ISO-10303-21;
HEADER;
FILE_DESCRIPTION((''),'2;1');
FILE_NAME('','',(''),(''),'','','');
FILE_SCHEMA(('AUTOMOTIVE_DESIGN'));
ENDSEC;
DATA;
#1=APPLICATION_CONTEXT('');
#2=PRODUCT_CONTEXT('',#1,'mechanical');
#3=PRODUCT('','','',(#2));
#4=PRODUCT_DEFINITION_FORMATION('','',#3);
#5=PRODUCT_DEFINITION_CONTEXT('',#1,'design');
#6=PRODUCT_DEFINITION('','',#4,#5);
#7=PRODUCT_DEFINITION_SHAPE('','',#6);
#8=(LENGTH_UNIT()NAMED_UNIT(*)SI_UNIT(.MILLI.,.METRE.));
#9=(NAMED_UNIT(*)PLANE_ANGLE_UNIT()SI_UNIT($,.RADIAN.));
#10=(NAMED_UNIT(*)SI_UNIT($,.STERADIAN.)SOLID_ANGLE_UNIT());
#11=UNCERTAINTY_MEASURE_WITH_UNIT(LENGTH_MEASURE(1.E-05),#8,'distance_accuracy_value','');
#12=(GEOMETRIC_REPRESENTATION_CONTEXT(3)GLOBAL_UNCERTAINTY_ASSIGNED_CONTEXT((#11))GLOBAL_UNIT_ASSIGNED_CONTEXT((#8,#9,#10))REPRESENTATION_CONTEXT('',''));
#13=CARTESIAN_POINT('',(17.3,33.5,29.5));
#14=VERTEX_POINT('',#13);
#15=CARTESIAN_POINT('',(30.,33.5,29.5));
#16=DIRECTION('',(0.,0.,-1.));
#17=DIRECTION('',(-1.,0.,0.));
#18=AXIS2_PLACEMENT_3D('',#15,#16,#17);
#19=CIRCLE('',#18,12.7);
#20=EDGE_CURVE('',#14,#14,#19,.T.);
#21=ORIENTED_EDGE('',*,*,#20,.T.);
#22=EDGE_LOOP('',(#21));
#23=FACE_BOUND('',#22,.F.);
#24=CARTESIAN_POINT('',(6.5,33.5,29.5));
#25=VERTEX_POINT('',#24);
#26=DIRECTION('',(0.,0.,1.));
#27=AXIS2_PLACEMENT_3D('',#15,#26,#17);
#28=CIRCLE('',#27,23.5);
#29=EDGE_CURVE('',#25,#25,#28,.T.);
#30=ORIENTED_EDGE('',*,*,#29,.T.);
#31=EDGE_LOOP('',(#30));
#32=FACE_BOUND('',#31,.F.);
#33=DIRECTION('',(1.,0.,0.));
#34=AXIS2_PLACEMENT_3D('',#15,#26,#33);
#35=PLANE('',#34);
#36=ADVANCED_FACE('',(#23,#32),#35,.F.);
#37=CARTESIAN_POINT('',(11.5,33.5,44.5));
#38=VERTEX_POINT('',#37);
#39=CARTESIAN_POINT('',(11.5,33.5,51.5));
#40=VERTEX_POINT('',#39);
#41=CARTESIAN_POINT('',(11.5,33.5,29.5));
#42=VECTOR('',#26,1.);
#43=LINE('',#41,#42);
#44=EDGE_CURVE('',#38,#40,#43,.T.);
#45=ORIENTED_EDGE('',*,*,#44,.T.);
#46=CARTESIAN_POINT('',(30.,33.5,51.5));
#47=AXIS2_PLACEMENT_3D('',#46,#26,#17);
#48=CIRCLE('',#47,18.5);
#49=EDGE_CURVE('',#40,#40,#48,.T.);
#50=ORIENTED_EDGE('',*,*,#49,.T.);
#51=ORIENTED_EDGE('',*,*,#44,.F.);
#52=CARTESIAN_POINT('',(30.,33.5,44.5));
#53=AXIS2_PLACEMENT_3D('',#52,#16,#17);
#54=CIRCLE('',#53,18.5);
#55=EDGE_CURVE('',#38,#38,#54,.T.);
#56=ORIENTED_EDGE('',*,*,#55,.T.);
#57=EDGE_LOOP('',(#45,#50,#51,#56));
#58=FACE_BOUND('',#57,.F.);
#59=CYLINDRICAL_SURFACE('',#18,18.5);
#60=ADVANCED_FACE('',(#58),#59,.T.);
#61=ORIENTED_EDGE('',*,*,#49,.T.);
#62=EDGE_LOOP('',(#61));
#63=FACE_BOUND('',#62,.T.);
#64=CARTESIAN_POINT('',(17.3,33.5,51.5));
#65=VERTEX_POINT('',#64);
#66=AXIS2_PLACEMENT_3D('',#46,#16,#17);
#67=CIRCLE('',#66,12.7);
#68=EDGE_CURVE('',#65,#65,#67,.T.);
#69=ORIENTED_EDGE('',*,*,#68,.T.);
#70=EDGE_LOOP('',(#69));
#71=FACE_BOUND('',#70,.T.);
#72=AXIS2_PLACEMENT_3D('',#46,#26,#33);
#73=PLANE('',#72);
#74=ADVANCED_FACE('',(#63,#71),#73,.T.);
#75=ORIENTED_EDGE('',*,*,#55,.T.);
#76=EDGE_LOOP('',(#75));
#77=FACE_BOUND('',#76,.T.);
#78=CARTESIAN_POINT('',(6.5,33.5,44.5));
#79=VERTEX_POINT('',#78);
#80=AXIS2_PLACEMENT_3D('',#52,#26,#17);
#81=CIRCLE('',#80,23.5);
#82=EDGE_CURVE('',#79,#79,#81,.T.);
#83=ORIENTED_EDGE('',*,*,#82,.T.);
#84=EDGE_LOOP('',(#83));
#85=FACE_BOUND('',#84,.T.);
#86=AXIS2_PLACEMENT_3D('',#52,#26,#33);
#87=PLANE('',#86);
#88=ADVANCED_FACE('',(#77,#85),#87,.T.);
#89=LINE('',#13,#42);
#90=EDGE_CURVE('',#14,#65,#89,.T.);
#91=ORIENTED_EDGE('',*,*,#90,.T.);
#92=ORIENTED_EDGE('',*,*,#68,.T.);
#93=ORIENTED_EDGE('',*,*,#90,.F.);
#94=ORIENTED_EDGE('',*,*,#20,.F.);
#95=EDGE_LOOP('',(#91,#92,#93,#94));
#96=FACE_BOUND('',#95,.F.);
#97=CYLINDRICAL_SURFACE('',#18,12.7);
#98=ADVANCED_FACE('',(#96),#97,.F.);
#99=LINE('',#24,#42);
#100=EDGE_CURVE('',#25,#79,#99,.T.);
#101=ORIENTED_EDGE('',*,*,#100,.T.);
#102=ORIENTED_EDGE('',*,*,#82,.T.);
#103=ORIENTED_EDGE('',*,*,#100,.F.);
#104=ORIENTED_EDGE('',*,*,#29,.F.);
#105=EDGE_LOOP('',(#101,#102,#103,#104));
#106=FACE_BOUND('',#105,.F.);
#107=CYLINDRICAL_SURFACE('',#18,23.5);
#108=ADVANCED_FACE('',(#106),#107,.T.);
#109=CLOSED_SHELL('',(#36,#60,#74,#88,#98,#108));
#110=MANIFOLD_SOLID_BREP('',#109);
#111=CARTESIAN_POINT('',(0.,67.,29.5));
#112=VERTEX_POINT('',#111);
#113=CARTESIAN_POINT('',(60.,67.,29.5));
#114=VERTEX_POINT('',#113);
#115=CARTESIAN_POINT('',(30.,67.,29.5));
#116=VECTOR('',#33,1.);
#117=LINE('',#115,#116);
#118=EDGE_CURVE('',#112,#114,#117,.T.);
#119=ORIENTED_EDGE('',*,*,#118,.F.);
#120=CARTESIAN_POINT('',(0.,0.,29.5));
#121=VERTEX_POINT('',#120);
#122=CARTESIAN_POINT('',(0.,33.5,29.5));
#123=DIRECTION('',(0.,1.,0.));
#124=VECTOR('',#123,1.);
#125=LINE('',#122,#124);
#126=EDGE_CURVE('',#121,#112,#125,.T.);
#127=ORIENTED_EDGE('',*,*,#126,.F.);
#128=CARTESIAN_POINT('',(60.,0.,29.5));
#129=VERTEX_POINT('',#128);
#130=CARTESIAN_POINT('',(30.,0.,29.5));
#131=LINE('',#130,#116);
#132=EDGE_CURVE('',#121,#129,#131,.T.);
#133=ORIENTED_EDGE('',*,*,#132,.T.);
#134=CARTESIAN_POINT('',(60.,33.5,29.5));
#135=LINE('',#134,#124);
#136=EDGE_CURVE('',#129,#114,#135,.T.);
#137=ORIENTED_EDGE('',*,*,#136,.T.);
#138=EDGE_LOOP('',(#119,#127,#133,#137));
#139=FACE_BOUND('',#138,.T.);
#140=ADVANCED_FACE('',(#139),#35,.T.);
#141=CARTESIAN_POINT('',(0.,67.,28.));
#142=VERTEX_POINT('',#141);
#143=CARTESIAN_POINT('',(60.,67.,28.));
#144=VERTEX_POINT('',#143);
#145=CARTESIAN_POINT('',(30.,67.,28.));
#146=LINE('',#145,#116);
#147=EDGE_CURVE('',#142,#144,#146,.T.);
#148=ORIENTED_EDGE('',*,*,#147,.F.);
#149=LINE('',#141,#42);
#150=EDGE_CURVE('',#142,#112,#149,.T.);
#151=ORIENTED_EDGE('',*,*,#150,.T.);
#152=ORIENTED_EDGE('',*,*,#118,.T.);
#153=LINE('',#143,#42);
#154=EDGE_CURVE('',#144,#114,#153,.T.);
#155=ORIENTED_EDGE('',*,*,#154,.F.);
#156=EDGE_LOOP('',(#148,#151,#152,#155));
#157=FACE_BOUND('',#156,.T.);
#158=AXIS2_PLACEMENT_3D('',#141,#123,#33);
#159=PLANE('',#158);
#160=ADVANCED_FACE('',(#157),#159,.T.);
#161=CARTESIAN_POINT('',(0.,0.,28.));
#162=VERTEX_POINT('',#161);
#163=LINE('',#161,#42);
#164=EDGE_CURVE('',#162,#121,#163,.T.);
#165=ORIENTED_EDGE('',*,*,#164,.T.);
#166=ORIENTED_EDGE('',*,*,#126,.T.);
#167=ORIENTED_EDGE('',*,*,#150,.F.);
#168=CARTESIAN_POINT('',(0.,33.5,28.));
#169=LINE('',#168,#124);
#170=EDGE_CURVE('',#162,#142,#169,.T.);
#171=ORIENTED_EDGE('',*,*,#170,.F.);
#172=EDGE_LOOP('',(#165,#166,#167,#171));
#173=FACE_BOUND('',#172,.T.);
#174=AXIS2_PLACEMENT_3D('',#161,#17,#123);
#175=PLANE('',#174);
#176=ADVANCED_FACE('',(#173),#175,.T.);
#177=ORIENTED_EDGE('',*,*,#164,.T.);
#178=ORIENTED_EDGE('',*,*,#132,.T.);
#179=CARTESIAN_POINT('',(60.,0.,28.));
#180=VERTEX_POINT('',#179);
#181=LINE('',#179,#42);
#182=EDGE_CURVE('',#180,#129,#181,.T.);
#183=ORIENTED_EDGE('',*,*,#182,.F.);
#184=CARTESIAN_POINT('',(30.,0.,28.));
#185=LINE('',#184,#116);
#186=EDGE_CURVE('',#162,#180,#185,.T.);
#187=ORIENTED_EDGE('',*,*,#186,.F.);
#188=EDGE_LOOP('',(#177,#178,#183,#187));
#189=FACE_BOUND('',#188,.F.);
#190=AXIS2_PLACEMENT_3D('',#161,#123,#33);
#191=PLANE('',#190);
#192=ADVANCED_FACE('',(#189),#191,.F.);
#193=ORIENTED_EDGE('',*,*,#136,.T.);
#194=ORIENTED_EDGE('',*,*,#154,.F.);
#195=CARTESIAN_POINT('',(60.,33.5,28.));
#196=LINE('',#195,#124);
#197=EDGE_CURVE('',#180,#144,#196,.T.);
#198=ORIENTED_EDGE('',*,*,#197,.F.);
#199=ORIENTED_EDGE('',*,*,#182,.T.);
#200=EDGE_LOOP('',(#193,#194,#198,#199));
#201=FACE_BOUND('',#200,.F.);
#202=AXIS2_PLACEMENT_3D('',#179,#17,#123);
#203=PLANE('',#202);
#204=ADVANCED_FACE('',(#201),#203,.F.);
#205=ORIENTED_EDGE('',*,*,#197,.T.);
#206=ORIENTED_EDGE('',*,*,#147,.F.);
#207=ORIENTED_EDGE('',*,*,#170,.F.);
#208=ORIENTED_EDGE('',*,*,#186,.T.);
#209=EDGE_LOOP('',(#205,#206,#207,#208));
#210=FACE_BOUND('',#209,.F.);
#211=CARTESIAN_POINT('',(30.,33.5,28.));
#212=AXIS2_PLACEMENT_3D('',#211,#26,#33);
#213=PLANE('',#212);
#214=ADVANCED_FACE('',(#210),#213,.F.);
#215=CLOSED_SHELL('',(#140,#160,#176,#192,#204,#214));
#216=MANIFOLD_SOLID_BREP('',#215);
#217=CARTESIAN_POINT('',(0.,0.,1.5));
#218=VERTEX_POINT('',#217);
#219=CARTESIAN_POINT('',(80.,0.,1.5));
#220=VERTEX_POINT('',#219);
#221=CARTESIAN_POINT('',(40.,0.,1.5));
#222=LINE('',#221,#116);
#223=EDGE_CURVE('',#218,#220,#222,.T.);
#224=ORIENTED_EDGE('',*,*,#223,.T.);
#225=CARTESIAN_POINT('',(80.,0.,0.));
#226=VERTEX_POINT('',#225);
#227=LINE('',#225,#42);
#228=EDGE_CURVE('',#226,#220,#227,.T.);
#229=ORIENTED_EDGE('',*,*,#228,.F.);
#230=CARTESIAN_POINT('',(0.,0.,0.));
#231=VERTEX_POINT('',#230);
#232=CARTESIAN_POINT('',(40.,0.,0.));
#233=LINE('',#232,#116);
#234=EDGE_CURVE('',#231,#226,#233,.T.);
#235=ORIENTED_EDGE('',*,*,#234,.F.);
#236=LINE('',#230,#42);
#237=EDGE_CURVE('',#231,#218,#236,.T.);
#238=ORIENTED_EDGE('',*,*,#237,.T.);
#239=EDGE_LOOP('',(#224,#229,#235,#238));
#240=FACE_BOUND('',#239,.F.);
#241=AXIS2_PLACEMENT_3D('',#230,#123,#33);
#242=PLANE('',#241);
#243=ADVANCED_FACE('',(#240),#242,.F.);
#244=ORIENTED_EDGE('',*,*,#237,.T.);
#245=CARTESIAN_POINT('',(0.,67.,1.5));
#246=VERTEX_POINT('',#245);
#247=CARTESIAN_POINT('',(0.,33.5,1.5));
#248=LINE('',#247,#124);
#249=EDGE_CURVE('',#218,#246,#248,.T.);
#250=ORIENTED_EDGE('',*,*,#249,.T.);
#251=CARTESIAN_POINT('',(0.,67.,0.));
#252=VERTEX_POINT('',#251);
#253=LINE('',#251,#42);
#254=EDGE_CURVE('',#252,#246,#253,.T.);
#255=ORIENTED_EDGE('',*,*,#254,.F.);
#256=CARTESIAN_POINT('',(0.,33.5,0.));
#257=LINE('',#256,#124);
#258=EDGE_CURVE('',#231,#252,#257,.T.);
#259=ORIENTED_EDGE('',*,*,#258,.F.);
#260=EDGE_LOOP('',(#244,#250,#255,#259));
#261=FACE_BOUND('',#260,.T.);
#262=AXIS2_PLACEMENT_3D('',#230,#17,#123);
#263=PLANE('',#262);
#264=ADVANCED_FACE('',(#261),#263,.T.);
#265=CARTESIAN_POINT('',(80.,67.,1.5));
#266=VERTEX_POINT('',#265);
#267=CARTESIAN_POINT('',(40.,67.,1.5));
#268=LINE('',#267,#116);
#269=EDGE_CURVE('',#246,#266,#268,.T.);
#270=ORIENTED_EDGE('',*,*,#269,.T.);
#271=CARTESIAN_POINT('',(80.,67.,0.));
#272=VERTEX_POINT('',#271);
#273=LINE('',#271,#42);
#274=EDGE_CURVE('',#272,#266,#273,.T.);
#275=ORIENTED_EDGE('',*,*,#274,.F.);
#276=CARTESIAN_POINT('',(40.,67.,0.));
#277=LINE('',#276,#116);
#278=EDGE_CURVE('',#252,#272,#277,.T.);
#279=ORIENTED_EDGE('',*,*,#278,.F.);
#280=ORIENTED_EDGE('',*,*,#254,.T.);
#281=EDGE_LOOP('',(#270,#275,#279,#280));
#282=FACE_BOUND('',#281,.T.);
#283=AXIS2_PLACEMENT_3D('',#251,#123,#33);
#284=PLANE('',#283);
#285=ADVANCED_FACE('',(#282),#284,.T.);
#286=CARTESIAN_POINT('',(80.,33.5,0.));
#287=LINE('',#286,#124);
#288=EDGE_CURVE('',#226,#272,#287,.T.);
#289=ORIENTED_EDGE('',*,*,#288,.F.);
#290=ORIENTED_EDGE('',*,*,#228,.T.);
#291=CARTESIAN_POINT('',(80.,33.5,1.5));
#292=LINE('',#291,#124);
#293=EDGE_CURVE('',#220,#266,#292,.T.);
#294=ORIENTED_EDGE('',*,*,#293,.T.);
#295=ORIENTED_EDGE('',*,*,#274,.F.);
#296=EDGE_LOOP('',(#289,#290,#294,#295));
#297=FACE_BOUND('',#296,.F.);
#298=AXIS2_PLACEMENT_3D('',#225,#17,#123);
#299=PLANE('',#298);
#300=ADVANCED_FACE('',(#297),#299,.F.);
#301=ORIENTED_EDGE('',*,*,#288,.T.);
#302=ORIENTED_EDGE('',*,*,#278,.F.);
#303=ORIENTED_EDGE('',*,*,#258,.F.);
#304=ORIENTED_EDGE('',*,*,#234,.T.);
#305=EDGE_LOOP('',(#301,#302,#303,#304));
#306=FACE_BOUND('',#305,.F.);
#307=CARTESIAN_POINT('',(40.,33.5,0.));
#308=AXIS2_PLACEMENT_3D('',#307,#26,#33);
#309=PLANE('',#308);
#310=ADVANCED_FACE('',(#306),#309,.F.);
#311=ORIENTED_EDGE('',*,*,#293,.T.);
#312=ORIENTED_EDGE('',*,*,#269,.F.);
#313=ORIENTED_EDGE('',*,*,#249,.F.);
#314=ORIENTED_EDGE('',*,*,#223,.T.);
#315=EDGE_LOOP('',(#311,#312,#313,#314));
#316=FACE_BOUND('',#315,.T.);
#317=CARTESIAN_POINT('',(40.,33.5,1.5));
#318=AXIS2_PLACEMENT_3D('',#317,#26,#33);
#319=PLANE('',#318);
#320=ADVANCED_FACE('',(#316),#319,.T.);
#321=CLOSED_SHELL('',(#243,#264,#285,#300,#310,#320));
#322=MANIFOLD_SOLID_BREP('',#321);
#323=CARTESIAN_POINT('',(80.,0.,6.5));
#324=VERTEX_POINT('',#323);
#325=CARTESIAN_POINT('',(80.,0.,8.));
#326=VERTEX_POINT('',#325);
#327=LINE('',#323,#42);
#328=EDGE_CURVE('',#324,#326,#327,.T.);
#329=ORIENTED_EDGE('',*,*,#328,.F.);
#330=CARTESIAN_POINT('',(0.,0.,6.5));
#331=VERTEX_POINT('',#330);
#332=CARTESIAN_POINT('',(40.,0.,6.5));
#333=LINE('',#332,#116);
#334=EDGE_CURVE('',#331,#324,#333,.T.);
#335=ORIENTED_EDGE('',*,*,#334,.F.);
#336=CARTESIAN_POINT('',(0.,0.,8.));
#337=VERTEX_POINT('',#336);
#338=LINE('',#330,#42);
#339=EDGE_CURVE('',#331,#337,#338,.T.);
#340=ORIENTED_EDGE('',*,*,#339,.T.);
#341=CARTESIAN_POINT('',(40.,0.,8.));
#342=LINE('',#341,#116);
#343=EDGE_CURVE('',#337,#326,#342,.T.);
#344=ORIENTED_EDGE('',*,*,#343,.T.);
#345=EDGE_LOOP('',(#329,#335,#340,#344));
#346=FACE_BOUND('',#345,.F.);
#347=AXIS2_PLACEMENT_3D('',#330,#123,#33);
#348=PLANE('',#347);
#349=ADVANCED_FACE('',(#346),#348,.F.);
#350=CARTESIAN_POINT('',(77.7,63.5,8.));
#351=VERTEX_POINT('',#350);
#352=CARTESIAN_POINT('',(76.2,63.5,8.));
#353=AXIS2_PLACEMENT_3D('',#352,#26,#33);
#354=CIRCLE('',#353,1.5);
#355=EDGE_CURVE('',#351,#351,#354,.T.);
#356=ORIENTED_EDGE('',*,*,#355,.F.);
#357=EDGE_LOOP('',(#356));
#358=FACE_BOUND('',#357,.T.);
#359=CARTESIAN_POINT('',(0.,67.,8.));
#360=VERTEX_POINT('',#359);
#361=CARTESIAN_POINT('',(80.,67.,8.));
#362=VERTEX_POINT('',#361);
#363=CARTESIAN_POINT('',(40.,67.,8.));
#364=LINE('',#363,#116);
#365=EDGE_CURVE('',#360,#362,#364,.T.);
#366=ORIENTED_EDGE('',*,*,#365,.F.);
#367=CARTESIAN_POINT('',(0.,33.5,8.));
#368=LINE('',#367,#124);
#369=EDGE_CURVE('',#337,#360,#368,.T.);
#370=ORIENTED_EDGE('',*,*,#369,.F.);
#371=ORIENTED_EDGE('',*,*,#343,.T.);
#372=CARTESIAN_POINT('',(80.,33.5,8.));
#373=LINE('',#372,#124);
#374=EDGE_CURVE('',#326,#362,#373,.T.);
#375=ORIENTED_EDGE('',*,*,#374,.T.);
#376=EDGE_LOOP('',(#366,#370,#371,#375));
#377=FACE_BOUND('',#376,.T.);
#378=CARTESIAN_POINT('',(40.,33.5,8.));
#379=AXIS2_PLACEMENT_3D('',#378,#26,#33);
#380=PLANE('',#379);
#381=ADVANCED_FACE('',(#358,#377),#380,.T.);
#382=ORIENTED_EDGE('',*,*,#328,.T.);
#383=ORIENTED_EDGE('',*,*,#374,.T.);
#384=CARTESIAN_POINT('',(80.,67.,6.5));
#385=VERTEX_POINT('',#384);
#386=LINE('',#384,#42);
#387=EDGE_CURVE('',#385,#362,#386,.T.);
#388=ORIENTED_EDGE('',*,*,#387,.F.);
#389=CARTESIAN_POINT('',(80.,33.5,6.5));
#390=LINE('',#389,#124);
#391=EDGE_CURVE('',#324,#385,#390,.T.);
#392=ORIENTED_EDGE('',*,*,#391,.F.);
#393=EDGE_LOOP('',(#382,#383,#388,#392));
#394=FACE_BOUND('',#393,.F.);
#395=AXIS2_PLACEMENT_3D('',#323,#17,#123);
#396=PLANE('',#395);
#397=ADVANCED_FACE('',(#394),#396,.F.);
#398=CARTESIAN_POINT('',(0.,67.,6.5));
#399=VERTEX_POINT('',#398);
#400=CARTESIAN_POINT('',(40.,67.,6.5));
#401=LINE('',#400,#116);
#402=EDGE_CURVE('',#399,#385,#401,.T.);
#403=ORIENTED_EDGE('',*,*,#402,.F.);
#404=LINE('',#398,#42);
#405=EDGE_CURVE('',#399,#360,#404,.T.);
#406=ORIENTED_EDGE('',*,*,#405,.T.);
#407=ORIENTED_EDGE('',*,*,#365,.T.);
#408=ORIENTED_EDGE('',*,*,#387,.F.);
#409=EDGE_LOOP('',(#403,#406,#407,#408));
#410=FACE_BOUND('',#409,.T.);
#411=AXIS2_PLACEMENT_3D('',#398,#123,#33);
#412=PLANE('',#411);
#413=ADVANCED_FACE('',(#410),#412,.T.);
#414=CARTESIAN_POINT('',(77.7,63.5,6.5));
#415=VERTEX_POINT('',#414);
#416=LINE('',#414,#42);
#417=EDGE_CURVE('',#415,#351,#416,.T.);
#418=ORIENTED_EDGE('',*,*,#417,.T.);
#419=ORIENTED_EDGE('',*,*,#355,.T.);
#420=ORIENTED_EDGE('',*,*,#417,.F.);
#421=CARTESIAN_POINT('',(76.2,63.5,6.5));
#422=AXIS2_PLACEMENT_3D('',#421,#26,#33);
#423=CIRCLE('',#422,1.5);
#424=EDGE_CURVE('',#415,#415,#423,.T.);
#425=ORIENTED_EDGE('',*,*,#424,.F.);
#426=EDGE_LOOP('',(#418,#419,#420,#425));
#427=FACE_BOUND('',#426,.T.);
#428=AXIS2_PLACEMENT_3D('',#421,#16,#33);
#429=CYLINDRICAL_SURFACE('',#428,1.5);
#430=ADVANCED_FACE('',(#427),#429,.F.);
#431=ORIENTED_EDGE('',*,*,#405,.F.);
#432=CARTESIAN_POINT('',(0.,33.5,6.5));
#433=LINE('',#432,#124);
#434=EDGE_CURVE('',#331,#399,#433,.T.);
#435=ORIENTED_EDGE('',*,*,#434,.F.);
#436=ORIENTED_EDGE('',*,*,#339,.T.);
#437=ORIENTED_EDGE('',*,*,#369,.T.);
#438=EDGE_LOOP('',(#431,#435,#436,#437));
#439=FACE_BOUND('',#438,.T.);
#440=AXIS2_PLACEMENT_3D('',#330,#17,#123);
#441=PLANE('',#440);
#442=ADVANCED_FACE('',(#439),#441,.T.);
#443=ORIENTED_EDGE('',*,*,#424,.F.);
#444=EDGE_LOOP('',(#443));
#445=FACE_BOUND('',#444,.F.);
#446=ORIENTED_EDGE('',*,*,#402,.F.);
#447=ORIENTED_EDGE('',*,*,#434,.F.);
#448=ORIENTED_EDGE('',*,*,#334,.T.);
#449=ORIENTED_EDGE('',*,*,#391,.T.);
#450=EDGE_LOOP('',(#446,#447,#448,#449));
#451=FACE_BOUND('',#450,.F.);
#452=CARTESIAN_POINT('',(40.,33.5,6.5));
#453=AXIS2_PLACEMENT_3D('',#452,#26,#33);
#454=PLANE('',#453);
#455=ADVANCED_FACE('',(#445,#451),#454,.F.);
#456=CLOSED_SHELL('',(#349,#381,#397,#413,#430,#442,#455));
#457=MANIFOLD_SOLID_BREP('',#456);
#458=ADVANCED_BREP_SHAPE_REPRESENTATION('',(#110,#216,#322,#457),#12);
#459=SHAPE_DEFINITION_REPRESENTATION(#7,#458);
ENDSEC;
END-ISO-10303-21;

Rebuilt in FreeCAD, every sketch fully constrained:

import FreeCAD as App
import Part
import Sketcher

V = App.Vector
Q = App.Units.Quantity


def add_polygon(sketch, points):
    """Adds a closed chain of lines whose ends are joined by coincident constraints."""
    first, n = sketch.GeometryCount, len(points)
    for a, b in zip(points, points[1:] + points[:1]):
        sketch.addGeometry(Part.LineSegment(App.Vector(*a, 0), App.Vector(*b, 0)), False)
    for i in range(n):
        sketch.addConstraint(Sketcher.Constraint("Coincident", first + i, 2, first + (i + 1) % n, 1))

doc = App.newDocument("Part")
body = doc.addObject("PartDesign::Body", "Body")

# Sketch on XY plane
sketch1 = body.newObject("Sketcher::SketchObject", "Sketch")
sketch1.AttachmentSupport = (doc.getObject("XY_Plane"), [""])
sketch1.MapMode = "FlatFace"
add_polygon(sketch1, [(0, 67), (0, 0), (80, 0), (80, 67)])  # lines 0-3
sketch1.addConstraint([
    Sketcher.Constraint("Vertical", 0),
    Sketcher.Constraint("Horizontal", 1),
    Sketcher.Constraint("Vertical", 2),
    Sketcher.Constraint("Horizontal", 3),
    Sketcher.Constraint("Coincident", 0, 2, -1, 1),
    Sketcher.Constraint("DistanceX", 1, 1, 1, 2, Q("80 mm")),
    Sketcher.Constraint("DistanceY", 0, 2, 0, 1, Q("67 mm")),
])
pad1 = body.newObject("PartDesign::Pad", "Pad")
pad1.Profile = sketch1
pad1.Length = 1.5
body2 = doc.addObject("PartDesign::Body", "Body001")

# Sketch on XY plane
sketch2 = body2.newObject("Sketcher::SketchObject", "Sketch001")
sketch2.AttachmentSupport = (doc.getObject("XY_Plane001"), [""])
sketch2.MapMode = "FlatFace"
sketch2.AttachmentOffset = App.Placement(V(0, 0, 6.5), App.Rotation())
add_polygon(sketch2, [(0, 67), (0, 0), (80, 0), (80, 67)])  # lines 0-3
sketch2.addGeometry(Part.Circle(V(76.2, 63.5, 0), V(0, 0, 1), 1.5), False)  # 4
sketch2.addConstraint([
    Sketcher.Constraint("Vertical", 0),
    Sketcher.Constraint("Horizontal", 1),
    Sketcher.Constraint("Vertical", 2),
    Sketcher.Constraint("Horizontal", 3),
    Sketcher.Constraint("Coincident", 0, 2, -1, 1),
    Sketcher.Constraint("Diameter", 4, Q("3 mm")),
    Sketcher.Constraint("DistanceX", 1, 1, 1, 2, Q("80 mm")),
    Sketcher.Constraint("DistanceY", 0, 2, 0, 1, Q("67 mm")),
    Sketcher.Constraint("DistanceX", -1, 1, 4, 3, Q("76.2 mm")),
    Sketcher.Constraint("DistanceY", -1, 1, 4, 3, Q("63.5 mm")),
])
pad2 = body2.newObject("PartDesign::Pad", "Pad001")
pad2.Profile = sketch2
pad2.Length = 1.5
body3 = doc.addObject("PartDesign::Body", "Body002")

# Sketch on XY plane
sketch3 = body3.newObject("Sketcher::SketchObject", "Sketch002")
sketch3.AttachmentSupport = (doc.getObject("XY_Plane002"), [""])
sketch3.MapMode = "FlatFace"
sketch3.AttachmentOffset = App.Placement(V(0, 0, 28), App.Rotation())
add_polygon(sketch3, [(0, 67), (0, 0), (60, 0), (60, 67)])  # lines 0-3
sketch3.addConstraint([
    Sketcher.Constraint("Vertical", 0),
    Sketcher.Constraint("Horizontal", 1),
    Sketcher.Constraint("Vertical", 2),
    Sketcher.Constraint("Horizontal", 3),
    Sketcher.Constraint("Coincident", 0, 2, -1, 1),
    Sketcher.Constraint("DistanceX", 1, 1, 1, 2, Q("60 mm")),
    Sketcher.Constraint("DistanceY", 0, 2, 0, 1, Q("67 mm")),
])
pad3 = body3.newObject("PartDesign::Pad", "Pad002")
pad3.Profile = sketch3
pad3.Length = 1.5
body4 = doc.addObject("PartDesign::Body", "Body003")

# Sketch on XY plane
sketch4 = body4.newObject("Sketcher::SketchObject", "Sketch003")
sketch4.AttachmentSupport = (doc.getObject("XY_Plane003"), [""])
sketch4.MapMode = "FlatFace"
sketch4.AttachmentOffset = App.Placement(V(0, 0, 29.5), App.Rotation())
sketch4.addGeometry([
    Part.Circle(V(30, 34, 0), V(0, 0, 1), 24),
    Part.Circle(V(30, 34, 0), V(0, 0, 1), 18),
], False)
sketch4.addConstraint([
    Sketcher.Constraint("Coincident", 1, 3, 0, 3),
    Sketcher.Constraint("Diameter", 0, Q("47 mm")),
    Sketcher.Constraint("Diameter", 1, Q("37 mm")),
    Sketcher.Constraint("DistanceX", -1, 1, 0, 3, Q("30 mm")),
    Sketcher.Constraint("DistanceY", -1, 1, 0, 3, Q("33.5 mm")),
])
pad4 = body4.newObject("PartDesign::Pad", "Pad003")
pad4.Profile = sketch4
pad4.Length = 15

# Sketch on XY plane
sketch5 = body4.newObject("Sketcher::SketchObject", "Sketch004")
sketch5.AttachmentSupport = (doc.getObject("XY_Plane003"), [""])
sketch5.MapMode = "FlatFace"
sketch5.AttachmentOffset = App.Placement(V(0, 0, 29.5), App.Rotation())
sketch5.addGeometry([
    Part.Circle(V(30, 34, 0), V(0, 0, 1), 18),
    Part.Circle(V(30, 34, 0), V(0, 0, 1), 13),
], False)
sketch5.addConstraint([
    Sketcher.Constraint("Coincident", 1, 3, 0, 3),
    Sketcher.Constraint("Diameter", 0, Q("37 mm")),
    Sketcher.Constraint("Diameter", 1, Q("25.4 mm")),
    Sketcher.Constraint("DistanceX", -1, 1, 0, 3, Q("30 mm")),
    Sketcher.Constraint("DistanceY", -1, 1, 0, 3, Q("33.5 mm")),
])
pad5 = body4.newObject("PartDesign::Pad", "Pad004")
pad5.Profile = sketch5
pad5.Length = 22

doc.recompute()
